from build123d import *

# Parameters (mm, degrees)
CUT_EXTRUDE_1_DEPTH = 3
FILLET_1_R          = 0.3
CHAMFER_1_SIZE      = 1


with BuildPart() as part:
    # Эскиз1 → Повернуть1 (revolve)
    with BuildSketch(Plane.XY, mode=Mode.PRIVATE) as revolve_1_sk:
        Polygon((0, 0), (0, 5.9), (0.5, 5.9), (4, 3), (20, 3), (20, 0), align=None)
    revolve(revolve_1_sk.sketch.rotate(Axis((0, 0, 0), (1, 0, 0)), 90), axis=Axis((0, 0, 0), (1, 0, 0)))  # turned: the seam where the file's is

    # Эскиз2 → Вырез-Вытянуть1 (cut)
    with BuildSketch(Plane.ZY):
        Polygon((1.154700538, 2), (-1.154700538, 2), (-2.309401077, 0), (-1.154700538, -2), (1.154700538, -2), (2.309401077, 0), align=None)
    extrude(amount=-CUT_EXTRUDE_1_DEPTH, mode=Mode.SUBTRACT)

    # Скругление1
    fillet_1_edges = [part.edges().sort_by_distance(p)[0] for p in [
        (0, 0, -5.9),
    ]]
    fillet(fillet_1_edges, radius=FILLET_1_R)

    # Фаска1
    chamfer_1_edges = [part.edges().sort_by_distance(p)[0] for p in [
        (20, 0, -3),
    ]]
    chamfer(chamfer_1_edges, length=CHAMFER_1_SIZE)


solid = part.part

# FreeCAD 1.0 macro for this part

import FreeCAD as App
import Part
import Sketcher

V = App.Vector
Q = App.Units.Quantity


def edges_at(feature, points):
    """Names of the edges that pass closest to the given points."""
    edges = feature.Shape.Edges
    near = lambda p: min(range(len(edges)), key=lambda i: edges[i].distToShape(Part.Vertex(*p))[0])
    return sorted({f"Edge{near(p) + 1}" for p in points})

doc = App.newDocument("Part")
body = doc.addObject("PartDesign::Body", "Body")

sketch1 = body.newObject("Sketcher::SketchObject", "Sketch")
sketch1.AttachmentSupport = (doc.getObject("XY_Plane"), [""])
sketch1.MapMode = "FlatFace"
sketch1.addGeometry([
    Part.LineSegment(V(0, 5.9, 0), V(0, 0, 0)),
    Part.LineSegment(V(0, 0, 0), V(20, 0, 0)),
    Part.LineSegment(V(20, 0, 0), V(20, 3, 0)),
    Part.LineSegment(V(20, 3, 0), V(4, 3, 0)),
    Part.LineSegment(V(4, 3, 0), V(0.5, 5.9, 0)),
    Part.LineSegment(V(0.5, 5.9, 0), V(0, 5.9, 0)),
], False)
sketch1.addConstraint([
    Sketcher.Constraint("Coincident", 0, 2, 1, 1),
    Sketcher.Constraint("Coincident", 1, 2, 2, 1),
    Sketcher.Constraint("Coincident", 2, 2, 3, 1),
    Sketcher.Constraint("Coincident", 3, 2, 4, 1),
    Sketcher.Constraint("Coincident", 4, 2, 5, 1),
    Sketcher.Constraint("Coincident", 5, 2, 0, 1),
    Sketcher.Constraint("Vertical", 0),
    Sketcher.Constraint("Horizontal", 1),
    Sketcher.Constraint("Vertical", 2),
    Sketcher.Constraint("Horizontal", 3),
    Sketcher.Constraint("Horizontal", 5),
    Sketcher.Constraint("Coincident", 0, 2, -1, 1),
    Sketcher.Constraint("DistanceX", 1, 1, 1, 2, Q("20 mm")),
    Sketcher.Constraint("DistanceX", 3, 2, 3, 1, Q("16 mm")),
    Sketcher.Constraint("DistanceY", 2, 1, 2, 2, Q("3 mm")),
    Sketcher.Constraint("DistanceX", 5, 2, 5, 1, Q("0.5 mm")),
    Sketcher.Constraint("DistanceY", 0, 2, 0, 1, Q("5.9 mm")),
])
revolution = body.newObject("PartDesign::Revolution", "Revolution")
revolution.Profile = sketch1
revolution.ReferenceAxis = (sketch1, ["H_Axis"])
revolution.Angle = 360

sketch2 = body.newObject("Sketcher::SketchObject", "Sketch001")
sketch2.AttachmentSupport = (doc.getObject("YZ_Plane"), [""])
sketch2.MapMode = "FlatFace"
sketch2.addGeometry([
    Part.LineSegment(V(2, 1.2, 0), V(2, -1.2, 0)),
    Part.LineSegment(V(2, -1.2, 0), V(0, -2.3, 0)),
    Part.LineSegment(V(0, -2.3, 0), V(-2, -1.2, 0)),
    Part.LineSegment(V(-2, -1.2, 0), V(-2, 1.2, 0)),
    Part.LineSegment(V(-2, 1.2, 0), V(0, 2.3, 0)),
    Part.LineSegment(V(0, 2.3, 0), V(2, 1.2, 0)),
], False)
sketch2.addConstraint([
    Sketcher.Constraint("Coincident", 0, 2, 1, 1),
    Sketcher.Constraint("Coincident", 1, 2, 2, 1),
    Sketcher.Constraint("Coincident", 2, 2, 3, 1),
    Sketcher.Constraint("Coincident", 3, 2, 4, 1),
    Sketcher.Constraint("Coincident", 4, 2, 5, 1),
    Sketcher.Constraint("Coincident", 5, 2, 0, 1),
    Sketcher.Constraint("Vertical", 0),
    Sketcher.Constraint("Vertical", 3),
    Sketcher.Constraint("Symmetric", 0, 2, 3, 2, -1, 1),
    Sketcher.Constraint("Symmetric", 1, 2, 4, 2, -1, 1),
    Sketcher.Constraint("PointOnObject", 1, 2, -2),
    Sketcher.Constraint("Parallel", 2, 5),
    Sketcher.Constraint("Horizontal", 0, 2, 2, 2),
    Sketcher.Constraint("Angle", 1, Q("-150 deg")),
    Sketcher.Constraint("DistanceX", -1, 1, 0, 2, Q("2 mm")),
    Sketcher.Constraint("DistanceY", 0, 2, 0, 1, Q("2.309401 mm")),
])
pocket1 = body.newObject("PartDesign::Pocket", "Pocket")
pocket1.Profile = sketch2
pocket1.Length = 3
pocket1.Reversed = True
doc.recompute()

fillet = body.newObject("PartDesign::Fillet", "Fillet")
fillet.Base = (pocket1, edges_at(pocket1, [(0, 0, -5.9)]))
fillet.Radius = 0.3
doc.recompute()

chamfer = body.newObject("PartDesign::Chamfer", "Chamfer")
chamfer.Base = (fillet, edges_at(fillet, [(20, 0, -3)]))
chamfer.Size = 1

doc.recompute()
